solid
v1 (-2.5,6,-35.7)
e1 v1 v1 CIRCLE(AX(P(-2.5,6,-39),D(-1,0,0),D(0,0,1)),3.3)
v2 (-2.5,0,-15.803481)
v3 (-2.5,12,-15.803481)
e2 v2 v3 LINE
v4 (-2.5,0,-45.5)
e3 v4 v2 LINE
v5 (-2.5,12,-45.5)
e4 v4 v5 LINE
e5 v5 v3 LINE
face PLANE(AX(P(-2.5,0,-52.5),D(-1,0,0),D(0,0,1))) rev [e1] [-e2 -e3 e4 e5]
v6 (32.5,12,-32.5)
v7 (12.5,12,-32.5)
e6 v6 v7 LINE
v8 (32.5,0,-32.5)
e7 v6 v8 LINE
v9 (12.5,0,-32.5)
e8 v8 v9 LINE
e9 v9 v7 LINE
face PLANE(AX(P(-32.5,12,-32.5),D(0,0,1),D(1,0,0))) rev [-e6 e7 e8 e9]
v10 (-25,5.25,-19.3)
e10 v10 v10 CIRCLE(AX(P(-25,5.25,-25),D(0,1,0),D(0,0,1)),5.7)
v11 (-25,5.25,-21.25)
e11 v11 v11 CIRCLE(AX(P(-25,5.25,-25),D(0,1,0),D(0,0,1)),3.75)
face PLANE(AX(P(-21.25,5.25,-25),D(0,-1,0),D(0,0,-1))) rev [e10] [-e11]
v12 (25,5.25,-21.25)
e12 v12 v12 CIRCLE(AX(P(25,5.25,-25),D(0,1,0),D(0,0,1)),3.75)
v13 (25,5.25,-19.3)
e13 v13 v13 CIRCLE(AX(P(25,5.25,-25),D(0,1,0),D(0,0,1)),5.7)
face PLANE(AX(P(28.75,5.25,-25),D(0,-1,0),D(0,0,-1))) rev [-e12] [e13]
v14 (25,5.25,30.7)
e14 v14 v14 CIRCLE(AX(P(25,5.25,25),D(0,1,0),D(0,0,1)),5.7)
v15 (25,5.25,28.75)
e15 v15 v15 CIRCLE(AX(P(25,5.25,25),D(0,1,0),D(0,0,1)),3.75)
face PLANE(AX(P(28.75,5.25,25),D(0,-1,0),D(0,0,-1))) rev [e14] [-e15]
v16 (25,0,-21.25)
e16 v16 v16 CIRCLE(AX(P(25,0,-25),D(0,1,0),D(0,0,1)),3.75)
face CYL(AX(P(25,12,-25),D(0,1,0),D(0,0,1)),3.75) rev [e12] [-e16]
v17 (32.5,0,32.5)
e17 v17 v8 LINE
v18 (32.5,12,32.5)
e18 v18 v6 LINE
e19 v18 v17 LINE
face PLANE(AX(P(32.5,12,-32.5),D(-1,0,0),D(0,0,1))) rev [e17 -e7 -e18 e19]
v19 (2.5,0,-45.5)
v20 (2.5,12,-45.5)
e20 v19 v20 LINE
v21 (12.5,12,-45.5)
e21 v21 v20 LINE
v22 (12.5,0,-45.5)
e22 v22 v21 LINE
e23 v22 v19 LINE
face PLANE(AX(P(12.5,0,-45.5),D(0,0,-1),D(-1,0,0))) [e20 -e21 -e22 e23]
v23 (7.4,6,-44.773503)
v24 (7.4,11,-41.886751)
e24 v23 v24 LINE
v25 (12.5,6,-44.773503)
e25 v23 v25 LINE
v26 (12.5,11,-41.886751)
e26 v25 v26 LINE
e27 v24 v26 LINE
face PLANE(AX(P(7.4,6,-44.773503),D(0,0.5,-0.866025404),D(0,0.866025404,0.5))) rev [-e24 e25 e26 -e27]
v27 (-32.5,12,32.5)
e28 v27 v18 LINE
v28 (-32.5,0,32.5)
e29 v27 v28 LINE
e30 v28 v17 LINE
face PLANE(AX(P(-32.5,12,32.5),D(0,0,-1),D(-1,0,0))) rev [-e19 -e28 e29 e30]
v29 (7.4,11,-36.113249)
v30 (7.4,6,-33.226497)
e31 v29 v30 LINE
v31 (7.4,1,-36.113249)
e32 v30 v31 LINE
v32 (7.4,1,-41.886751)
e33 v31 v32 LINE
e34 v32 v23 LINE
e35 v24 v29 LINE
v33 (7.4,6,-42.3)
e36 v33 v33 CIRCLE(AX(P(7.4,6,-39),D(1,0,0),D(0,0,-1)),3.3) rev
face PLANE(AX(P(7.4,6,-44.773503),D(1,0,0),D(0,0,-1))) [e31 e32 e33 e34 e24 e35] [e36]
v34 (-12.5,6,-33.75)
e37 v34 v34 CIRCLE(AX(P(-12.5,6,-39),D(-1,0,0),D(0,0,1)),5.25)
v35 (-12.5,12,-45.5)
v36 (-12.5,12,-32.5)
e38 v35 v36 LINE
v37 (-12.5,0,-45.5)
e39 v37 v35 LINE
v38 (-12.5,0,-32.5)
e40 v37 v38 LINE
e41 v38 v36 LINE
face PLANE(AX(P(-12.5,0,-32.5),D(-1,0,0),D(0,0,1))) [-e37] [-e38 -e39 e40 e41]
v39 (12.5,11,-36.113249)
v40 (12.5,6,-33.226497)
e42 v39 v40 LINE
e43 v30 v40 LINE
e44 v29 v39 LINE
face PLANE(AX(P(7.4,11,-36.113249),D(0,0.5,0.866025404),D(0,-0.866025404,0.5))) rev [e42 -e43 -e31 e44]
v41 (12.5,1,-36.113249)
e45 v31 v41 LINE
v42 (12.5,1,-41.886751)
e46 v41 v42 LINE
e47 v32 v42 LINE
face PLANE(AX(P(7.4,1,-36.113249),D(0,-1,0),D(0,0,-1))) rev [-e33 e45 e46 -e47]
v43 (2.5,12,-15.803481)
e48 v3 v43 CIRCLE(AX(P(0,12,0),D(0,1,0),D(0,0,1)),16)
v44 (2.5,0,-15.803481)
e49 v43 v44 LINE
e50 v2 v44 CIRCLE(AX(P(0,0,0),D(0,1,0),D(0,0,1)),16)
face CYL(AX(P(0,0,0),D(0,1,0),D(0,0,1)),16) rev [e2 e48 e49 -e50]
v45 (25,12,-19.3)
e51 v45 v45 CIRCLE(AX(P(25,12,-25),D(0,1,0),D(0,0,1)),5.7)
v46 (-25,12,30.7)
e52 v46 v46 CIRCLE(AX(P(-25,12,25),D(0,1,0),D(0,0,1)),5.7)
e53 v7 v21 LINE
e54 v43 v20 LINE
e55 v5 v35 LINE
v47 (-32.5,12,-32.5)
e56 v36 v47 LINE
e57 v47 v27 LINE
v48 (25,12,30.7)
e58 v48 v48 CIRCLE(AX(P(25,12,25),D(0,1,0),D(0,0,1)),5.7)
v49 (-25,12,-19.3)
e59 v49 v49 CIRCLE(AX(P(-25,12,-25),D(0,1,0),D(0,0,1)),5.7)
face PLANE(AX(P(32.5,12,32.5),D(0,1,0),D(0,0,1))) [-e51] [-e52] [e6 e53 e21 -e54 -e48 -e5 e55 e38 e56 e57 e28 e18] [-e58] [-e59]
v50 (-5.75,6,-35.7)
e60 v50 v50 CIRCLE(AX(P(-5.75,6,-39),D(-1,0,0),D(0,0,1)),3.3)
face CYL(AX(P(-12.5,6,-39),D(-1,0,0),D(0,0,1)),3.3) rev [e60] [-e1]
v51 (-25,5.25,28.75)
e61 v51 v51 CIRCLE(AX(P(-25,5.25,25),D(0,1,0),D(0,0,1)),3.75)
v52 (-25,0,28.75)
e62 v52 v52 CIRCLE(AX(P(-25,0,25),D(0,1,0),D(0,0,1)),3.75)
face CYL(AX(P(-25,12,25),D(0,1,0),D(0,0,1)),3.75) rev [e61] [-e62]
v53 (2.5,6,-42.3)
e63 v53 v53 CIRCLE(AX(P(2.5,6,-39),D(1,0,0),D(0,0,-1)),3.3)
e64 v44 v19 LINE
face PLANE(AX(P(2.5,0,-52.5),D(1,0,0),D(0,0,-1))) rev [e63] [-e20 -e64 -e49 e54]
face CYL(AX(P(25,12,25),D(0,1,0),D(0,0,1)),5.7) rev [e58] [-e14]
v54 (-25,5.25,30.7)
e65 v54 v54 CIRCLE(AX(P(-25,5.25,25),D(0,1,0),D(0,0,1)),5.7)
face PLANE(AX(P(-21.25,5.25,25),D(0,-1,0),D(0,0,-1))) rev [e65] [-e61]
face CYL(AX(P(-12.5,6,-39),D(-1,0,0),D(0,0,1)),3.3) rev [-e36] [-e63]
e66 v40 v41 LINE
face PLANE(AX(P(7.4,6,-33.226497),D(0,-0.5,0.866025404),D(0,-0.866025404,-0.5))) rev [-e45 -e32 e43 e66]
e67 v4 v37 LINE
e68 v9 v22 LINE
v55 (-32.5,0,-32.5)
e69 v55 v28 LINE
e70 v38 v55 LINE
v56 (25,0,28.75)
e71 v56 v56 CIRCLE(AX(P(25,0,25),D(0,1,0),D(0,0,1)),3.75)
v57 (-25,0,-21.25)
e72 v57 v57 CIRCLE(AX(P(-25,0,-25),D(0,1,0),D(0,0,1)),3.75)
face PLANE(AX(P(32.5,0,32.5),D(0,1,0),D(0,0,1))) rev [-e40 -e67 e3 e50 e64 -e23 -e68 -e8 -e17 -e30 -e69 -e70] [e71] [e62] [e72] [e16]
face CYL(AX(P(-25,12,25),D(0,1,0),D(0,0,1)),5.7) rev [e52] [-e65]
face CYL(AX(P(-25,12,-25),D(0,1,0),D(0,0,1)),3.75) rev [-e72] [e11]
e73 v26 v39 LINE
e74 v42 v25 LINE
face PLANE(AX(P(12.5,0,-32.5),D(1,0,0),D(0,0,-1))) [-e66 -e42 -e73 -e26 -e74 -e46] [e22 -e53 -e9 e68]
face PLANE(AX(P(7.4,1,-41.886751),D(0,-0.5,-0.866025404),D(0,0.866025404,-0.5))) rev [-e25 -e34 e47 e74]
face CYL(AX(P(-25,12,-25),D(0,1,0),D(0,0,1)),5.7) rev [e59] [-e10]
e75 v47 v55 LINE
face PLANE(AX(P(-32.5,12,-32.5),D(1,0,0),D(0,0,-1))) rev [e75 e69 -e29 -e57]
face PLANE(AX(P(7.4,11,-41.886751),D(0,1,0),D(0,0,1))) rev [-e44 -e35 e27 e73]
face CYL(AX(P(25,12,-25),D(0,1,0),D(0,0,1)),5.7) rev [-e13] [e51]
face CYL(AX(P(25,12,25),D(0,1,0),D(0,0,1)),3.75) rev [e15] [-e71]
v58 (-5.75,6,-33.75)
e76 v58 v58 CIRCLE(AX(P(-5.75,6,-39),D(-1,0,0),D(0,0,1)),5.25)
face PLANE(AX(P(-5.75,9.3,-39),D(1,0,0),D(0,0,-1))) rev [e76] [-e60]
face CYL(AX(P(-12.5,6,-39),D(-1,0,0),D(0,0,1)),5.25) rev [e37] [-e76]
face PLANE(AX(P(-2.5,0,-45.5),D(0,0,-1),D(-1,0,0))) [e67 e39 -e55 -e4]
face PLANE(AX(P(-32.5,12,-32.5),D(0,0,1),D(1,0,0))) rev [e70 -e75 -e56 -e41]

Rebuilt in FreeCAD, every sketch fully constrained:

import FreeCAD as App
import Part
import Sketcher
from FreeCAD import Vector
Q = App.Units.Quantity

doc = App.newDocument("Part")
body = doc.addObject("PartDesign::Body", "Body")

# Sketch on XZ plane
sketch1 = body.newObject("Sketcher::SketchObject", "Sketch")
sketch1.AttachmentSupport = (doc.getObject("XZ_Plane"), [""])
sketch1.MapMode = "FlatFace"
sketch1.addGeometry(Part.LineSegment(Vector(-32, -32, 0), Vector(-32, 32, 0)), False)
sketch1.addGeometry(Part.LineSegment(Vector(-32, 32, 0), Vector(32, 32, 0)), False)
sketch1.addGeometry(Part.LineSegment(Vector(32, 32, 0), Vector(32, -32, 0)), False)
sketch1.addGeometry(Part.LineSegment(Vector(32, -32, 0), Vector(-32, -32, 0)), False)
sketch1.addConstraint(Sketcher.Constraint("Coincident", 0, 2, 1, 1))
sketch1.addConstraint(Sketcher.Constraint("Coincident", 1, 2, 2, 1))
sketch1.addConstraint(Sketcher.Constraint("Coincident", 2, 2, 3, 1))
sketch1.addConstraint(Sketcher.Constraint("Coincident", 3, 2, 0, 1))
sketch1.addConstraint(Sketcher.Constraint("Vertical", 0))
sketch1.addConstraint(Sketcher.Constraint("Horizontal", 1))
sketch1.addConstraint(Sketcher.Constraint("Vertical", 2))
sketch1.addConstraint(Sketcher.Constraint("Horizontal", 3))
sketch1.addConstraint(Sketcher.Constraint("Symmetric", 0, 2, 2, 2, -1, 1))
sketch1.addConstraint(Sketcher.Constraint("Equal", 3, 0))
sketch1.addConstraint(Sketcher.Constraint("DistanceX", 1, 1, 1, 2, Q("65 mm")))
pad1 = body.newObject("PartDesign::Pad", "Pad")
pad1.Profile = sketch1
pad1.Length = 12
pad1.Reversed = True

# Sketch on XZ plane
sketch2 = body.newObject("Sketcher::SketchObject", "Sketch001")
sketch2.AttachmentSupport = (doc.getObject("XZ_Plane"), [""])
sketch2.MapMode = "FlatFace"
sketch2.AttachmentOffset = App.Placement(Vector(0, 0, -12), App.Rotation())
sketch2.addGeometry(Part.Circle(Vector(0, 0, 0), Vector(0, 0, 1), 16), False)
sketch2.addConstraint(Sketcher.Constraint("Coincident", 0, 3, -1, 1))
sketch2.addConstraint(Sketcher.Constraint("Diameter", 0, Q("32 mm")))
pocket1 = body.newObject("PartDesign::Pocket", "Pocket")
pocket1.Profile = sketch2
pocket1.Length = 12
pocket1.Reversed = True

# Sketch on XZ plane
sketch3 = body.newObject("Sketcher::SketchObject", "Sketch002")
sketch3.AttachmentSupport = (doc.getObject("XZ_Plane"), [""])
sketch3.MapMode = "FlatFace"
sketch3.AttachmentOffset = App.Placement(Vector(0, 0, -12), App.Rotation())
sketch3.addGeometry(Part.LineSegment(Vector(2, -12, 0), Vector(2, -52, 0)), False)
sketch3.addGeometry(Part.LineSegment(Vector(2, -52, 0), Vector(-2, -52, 0)), False)
sketch3.addGeometry(Part.LineSegment(Vector(-2, -52, 0), Vector(-2, -12, 0)), False)
sketch3.addGeometry(Part.LineSegment(Vector(-2, -12, 0), Vector(2, -12, 0)), False)
sketch3.addConstraint(Sketcher.Constraint("Coincident", 0, 2, 1, 1))
sketch3.addConstraint(Sketcher.Constraint("Coincident", 1, 2, 2, 1))
sketch3.addConstraint(Sketcher.Constraint("Coincident", 2, 2, 3, 1))
sketch3.addConstraint(Sketcher.Constraint("Coincident", 3, 2, 0, 1))
sketch3.addConstraint(Sketcher.Constraint("Vertical", 0))
sketch3.addConstraint(Sketcher.Constraint("Horizontal", 1))
sketch3.addConstraint(Sketcher.Constraint("Vertical", 2))
sketch3.addConstraint(Sketcher.Constraint("Horizontal", 3))
sketch3.addConstraint(Sketcher.Constraint("DistanceX", 1, 2, 1, 1, Q("5 mm")))
sketch3.addConstraint(Sketcher.Constraint("DistanceY", 0, 2, 0, 1, Q("40 mm")))
sketch3.addConstraint(Sketcher.Constraint("DistanceX", -1, 1, 0, 2, Q("2.5 mm")))
sketch3.addConstraint(Sketcher.Constraint("DistanceY", 0, 2, -1, 1, Q("52.5 mm")))
pocket2 = body.newObject("PartDesign::Pocket", "Pocket001")
pocket2.Profile = sketch3
pocket2.Length = 12
pocket2.Reversed = True

# Sketch on XZ plane
sketch4 = body.newObject("Sketcher::SketchObject", "Sketch003")
sketch4.AttachmentSupport = (doc.getObject("XZ_Plane"), [""])
sketch4.MapMode = "FlatFace"
sketch4.AttachmentOffset = App.Placement(Vector(0, 0, -12), App.Rotation())
sketch4.addGeometry(Part.LineSegment(Vector(-2, -32, 0), Vector(-2, -46, 0)), False)
sketch4.addGeometry(Part.LineSegment(Vector(-2, -46, 0), Vector(-12, -46, 0)), False)
sketch4.addGeometry(Part.LineSegment(Vector(-12, -46, 0), Vector(-12, -32, 0)), False)
sketch4.addGeometry(Part.LineSegment(Vector(-12, -32, 0), Vector(-2, -32, 0)), False)
sketch4.addConstraint(Sketcher.Constraint("Coincident", 0, 2, 1, 1))
sketch4.addConstraint(Sketcher.Constraint("Coincident", 1, 2, 2, 1))
sketch4.addConstraint(Sketcher.Constraint("Coincident", 2, 2, 3, 1))
sketch4.addConstraint(Sketcher.Constraint("Coincident", 3, 2, 0, 1))
sketch4.addConstraint(Sketcher.Constraint("Vertical", 0))
sketch4.addConstraint(Sketcher.Constraint("Horizontal", 1))
sketch4.addConstraint(Sketcher.Constraint("Vertical", 2))
sketch4.addConstraint(Sketcher.Constraint("Horizontal", 3))
sketch4.addConstraint(Sketcher.Constraint("DistanceX", 1, 2, 1, 1, Q("10 mm")))
sketch4.addConstraint(Sketcher.Constraint("DistanceY", 0, 2, 0, 1, Q("13 mm")))
sketch4.addConstraint(Sketcher.Constraint("DistanceX", 0, 2, -1, 1, Q("2.5 mm")))
sketch4.addConstraint(Sketcher.Constraint("DistanceY", 0, 2, -1, 1, Q("45.5 mm")))
pad2 = body.newObject("PartDesign::Pad", "Pad001")
pad2.Profile = sketch4
pad2.Length = 12
doc.recompute()

linearpattern = body.newObject("PartDesign::LinearPattern", "LinearPattern")
linearpattern.Originals = [pad2]
linearpattern.Direction = (doc.getObject("X_Axis"), [""])
linearpattern.Mode = "offset"
linearpattern.Offset = 15
linearpattern.Occurrences = 2
body.Tip = linearpattern

# Sketch on YZ plane
sketch5 = body.newObject("Sketcher::SketchObject", "Sketch004")
sketch5.AttachmentSupport = (doc.getObject("YZ_Plane"), [""])
sketch5.MapMode = "FlatFace"
sketch5.AttachmentOffset = App.Placement(Vector(0, 0, -12.5), App.Rotation())
sketch5.addGeometry(Part.Circle(Vector(6, -39, 0), Vector(0, 0, 1), 3.3), False)
sketch5.addConstraint(Sketcher.Constraint("Diameter", 0, Q("6.6 mm")))
sketch5.addConstraint(Sketcher.Constraint("DistanceX", -1, 1, 0, 3, Q("6 mm")))
sketch5.addConstraint(Sketcher.Constraint("DistanceY", 0, 3, -1, 1, Q("39 mm")))
doc.recompute()
hole = body.newObject("PartDesign::Hole", "Hole")
hole.Profile = sketch5
hole.ThreadType = "None"
hole.Diameter = 6.6
hole.DepthType = "ThroughAll"
hole.HoleCutType = "Counterbore"
hole.HoleCutDiameter = 10.5
hole.HoleCutDepth = 6.75
hole.Reversed = True

# Sketch on YZ plane
sketch6 = body.newObject("Sketcher::SketchObject", "Sketch005")
sketch6.AttachmentSupport = (doc.getObject("YZ_Plane"), [""])
sketch6.MapMode = "FlatFace"
sketch6.AttachmentOffset = App.Placement(Vector(0, 0, 12.5), App.Rotation())
sketch6.addGeometry(Part.LineSegment(Vector(6, -45, 0), Vector(11, -42, 0)), False)
sketch6.addGeometry(Part.LineSegment(Vector(11, -42, 0), Vector(11, -36, 0)), False)
sketch6.addGeometry(Part.LineSegment(Vector(11, -36, 0), Vector(6, -33, 0)), False)
sketch6.addGeometry(Part.LineSegment(Vector(6, -33, 0), Vector(1, -36, 0)), False)
sketch6.addGeometry(Part.LineSegment(Vector(1, -36, 0), Vector(1, -42, 0)), False)
sketch6.addGeometry(Part.LineSegment(Vector(1, -42, 0), Vector(6, -45, 0)), False)
sketch6.addConstraint(Sketcher.Constraint("Coincident", 0, 2, 1, 1))
sketch6.addConstraint(Sketcher.Constraint("Coincident", 1, 2, 2, 1))
sketch6.addConstraint(Sketcher.Constraint("Coincident", 2, 2, 3, 1))
sketch6.addConstraint(Sketcher.Constraint("Coincident", 3, 2, 4, 1))
sketch6.addConstraint(Sketcher.Constraint("Coincident", 4, 2, 5, 1))
sketch6.addConstraint(Sketcher.Constraint("Coincident", 5, 2, 0, 1))
sketch6.addConstraint(Sketcher.Constraint("Vertical", 1))
sketch6.addConstraint(Sketcher.Constraint("Vertical", 4))
sketch6.addConstraint(Sketcher.Constraint("Parallel", 0, 3))
sketch6.addConstraint(Sketcher.Constraint("Parallel", 2, 5))
sketch6.addConstraint(Sketcher.Constraint("Horizontal", 1, 2, 3, 2))
sketch6.addConstraint(Sketcher.Constraint("Horizontal", 0, 2, 4, 2))
sketch6.addConstraint(Sketcher.Constraint("Vertical", 2, 2, 5, 2))
sketch6.addConstraint(Sketcher.Constraint("Angle", 0, Q("30 deg")))
sketch6.addConstraint(Sketcher.Constraint("DistanceX", -1, 1, 0, 2, Q("11 mm")))
sketch6.addConstraint(Sketcher.Constraint("DistanceX", -1, 1, 2, 2, Q("6 mm")))
sketch6.addConstraint(Sketcher.Constraint("DistanceY", 1, 1, 1, 2, Q("5.773503 mm")))
sketch6.addConstraint(Sketcher.Constraint("DistanceY", 0, 2, -1, 1, Q("41.886751 mm")))
pocket3 = body.newObject("PartDesign::Pocket", "Pocket002")
pocket3.Profile = sketch6
pocket3.Length = 5.1

# Sketch on XZ plane
sketch7 = body.newObject("Sketcher::SketchObject", "Sketch006")
sketch7.AttachmentSupport = (doc.getObject("XZ_Plane"), [""])
sketch7.MapMode = "FlatFace"
sketch7.AttachmentOffset = App.Placement(Vector(0, 0, -12), App.Rotation())
sketch7.addGeometry(Part.Circle(Vector(-25, -25, 0), Vector(0, 0, 1), 3.8), False)
sketch7.addConstraint(Sketcher.Constraint("Diameter", 0, Q("7.5 mm")))
sketch7.addConstraint(Sketcher.Constraint("DistanceX", 0, 3, -1, 1, Q("25 mm")))
sketch7.addConstraint(Sketcher.Constraint("DistanceY", 0, 3, -1, 1, Q("25 mm")))
doc.recompute()
hole2 = body.newObject("PartDesign::Hole", "Hole001")
hole2.Profile = sketch7
hole2.ThreadType = "None"
hole2.Diameter = 7.5
hole2.DepthType = "ThroughAll"
hole2.HoleCutType = "Counterbore"
hole2.HoleCutDiameter = 11.4
hole2.HoleCutDepth = 6.75
hole2.Reversed = True

# Sketch on XZ plane
sketch8 = body.newObject("Sketcher::SketchObject", "Sketch007")
sketch8.AttachmentSupport = (doc.getObject("XZ_Plane"), [""])
sketch8.MapMode = "FlatFace"
sketch8.AttachmentOffset = App.Placement(Vector(0, 0, -12), App.Rotation())
sketch8.addGeometry(Part.Circle(Vector(25, -25, 0), Vector(0, 0, 1), 3.8), False)
sketch8.addConstraint(Sketcher.Constraint("Diameter", 0, Q("7.5 mm")))
sketch8.addConstraint(Sketcher.Constraint("DistanceX", -1, 1, 0, 3, Q("25 mm")))
sketch8.addConstraint(Sketcher.Constraint("DistanceY", 0, 3, -1, 1, Q("25 mm")))
doc.recompute()
hole3 = body.newObject("PartDesign::Hole", "Hole002")
hole3.Profile = sketch8
hole3.ThreadType = "None"
hole3.Diameter = 7.5
hole3.DepthType = "ThroughAll"
hole3.HoleCutType = "Counterbore"
hole3.HoleCutDiameter = 11.4
hole3.HoleCutDepth = 6.75
hole3.Reversed = True

# Sketch on XZ plane
sketch9 = body.newObject("Sketcher::SketchObject", "Sketch008")
sketch9.AttachmentSupport = (doc.getObject("XZ_Plane"), [""])
sketch9.MapMode = "FlatFace"
sketch9.AttachmentOffset = App.Placement(Vector(0, 0, -12), App.Rotation())
sketch9.addGeometry(Part.Circle(Vector(25, 25, 0), Vector(0, 0, 1), 3.8), False)
sketch9.addConstraint(Sketcher.Constraint("Diameter", 0, Q("7.5 mm")))
sketch9.addConstraint(Sketcher.Constraint("DistanceX", -1, 1, 0, 3, Q("25 mm")))
sketch9.addConstraint(Sketcher.Constraint("DistanceY", -1, 1, 0, 3, Q("25 mm")))
doc.recompute()
hole4 = body.newObject("PartDesign::Hole", "Hole003")
hole4.Profile = sketch9
hole4.ThreadType = "None"
hole4.Diameter = 7.5
hole4.DepthType = "ThroughAll"
hole4.HoleCutType = "Counterbore"
hole4.HoleCutDiameter = 11.4
hole4.HoleCutDepth = 6.75
hole4.Reversed = True

# Sketch on XZ plane
sketch10 = body.newObject("Sketcher::SketchObject", "Sketch009")
sketch10.AttachmentSupport = (doc.getObject("XZ_Plane"), [""])
sketch10.MapMode = "FlatFace"
sketch10.AttachmentOffset = App.Placement(Vector(0, 0, -12), App.Rotation())
sketch10.addGeometry(Part.Circle(Vector(-25, 25, 0), Vector(0, 0, 1), 3.8), False)
sketch10.addConstraint(Sketcher.Constraint("Diameter", 0, Q("7.5 mm")))
sketch10.addConstraint(Sketcher.Constraint("DistanceX", 0, 3, -1, 1, Q("25 mm")))
sketch10.addConstraint(Sketcher.Constraint("DistanceY", -1, 1, 0, 3, Q("25 mm")))
doc.recompute()
hole5 = body.newObject("PartDesign::Hole", "Hole004")
hole5.Profile = sketch10
hole5.ThreadType = "None"
hole5.Diameter = 7.5
hole5.DepthType = "ThroughAll"
hole5.HoleCutType = "Counterbore"
hole5.HoleCutDiameter = 11.4
hole5.HoleCutDepth = 6.75
hole5.Reversed = True

doc.recompute()
